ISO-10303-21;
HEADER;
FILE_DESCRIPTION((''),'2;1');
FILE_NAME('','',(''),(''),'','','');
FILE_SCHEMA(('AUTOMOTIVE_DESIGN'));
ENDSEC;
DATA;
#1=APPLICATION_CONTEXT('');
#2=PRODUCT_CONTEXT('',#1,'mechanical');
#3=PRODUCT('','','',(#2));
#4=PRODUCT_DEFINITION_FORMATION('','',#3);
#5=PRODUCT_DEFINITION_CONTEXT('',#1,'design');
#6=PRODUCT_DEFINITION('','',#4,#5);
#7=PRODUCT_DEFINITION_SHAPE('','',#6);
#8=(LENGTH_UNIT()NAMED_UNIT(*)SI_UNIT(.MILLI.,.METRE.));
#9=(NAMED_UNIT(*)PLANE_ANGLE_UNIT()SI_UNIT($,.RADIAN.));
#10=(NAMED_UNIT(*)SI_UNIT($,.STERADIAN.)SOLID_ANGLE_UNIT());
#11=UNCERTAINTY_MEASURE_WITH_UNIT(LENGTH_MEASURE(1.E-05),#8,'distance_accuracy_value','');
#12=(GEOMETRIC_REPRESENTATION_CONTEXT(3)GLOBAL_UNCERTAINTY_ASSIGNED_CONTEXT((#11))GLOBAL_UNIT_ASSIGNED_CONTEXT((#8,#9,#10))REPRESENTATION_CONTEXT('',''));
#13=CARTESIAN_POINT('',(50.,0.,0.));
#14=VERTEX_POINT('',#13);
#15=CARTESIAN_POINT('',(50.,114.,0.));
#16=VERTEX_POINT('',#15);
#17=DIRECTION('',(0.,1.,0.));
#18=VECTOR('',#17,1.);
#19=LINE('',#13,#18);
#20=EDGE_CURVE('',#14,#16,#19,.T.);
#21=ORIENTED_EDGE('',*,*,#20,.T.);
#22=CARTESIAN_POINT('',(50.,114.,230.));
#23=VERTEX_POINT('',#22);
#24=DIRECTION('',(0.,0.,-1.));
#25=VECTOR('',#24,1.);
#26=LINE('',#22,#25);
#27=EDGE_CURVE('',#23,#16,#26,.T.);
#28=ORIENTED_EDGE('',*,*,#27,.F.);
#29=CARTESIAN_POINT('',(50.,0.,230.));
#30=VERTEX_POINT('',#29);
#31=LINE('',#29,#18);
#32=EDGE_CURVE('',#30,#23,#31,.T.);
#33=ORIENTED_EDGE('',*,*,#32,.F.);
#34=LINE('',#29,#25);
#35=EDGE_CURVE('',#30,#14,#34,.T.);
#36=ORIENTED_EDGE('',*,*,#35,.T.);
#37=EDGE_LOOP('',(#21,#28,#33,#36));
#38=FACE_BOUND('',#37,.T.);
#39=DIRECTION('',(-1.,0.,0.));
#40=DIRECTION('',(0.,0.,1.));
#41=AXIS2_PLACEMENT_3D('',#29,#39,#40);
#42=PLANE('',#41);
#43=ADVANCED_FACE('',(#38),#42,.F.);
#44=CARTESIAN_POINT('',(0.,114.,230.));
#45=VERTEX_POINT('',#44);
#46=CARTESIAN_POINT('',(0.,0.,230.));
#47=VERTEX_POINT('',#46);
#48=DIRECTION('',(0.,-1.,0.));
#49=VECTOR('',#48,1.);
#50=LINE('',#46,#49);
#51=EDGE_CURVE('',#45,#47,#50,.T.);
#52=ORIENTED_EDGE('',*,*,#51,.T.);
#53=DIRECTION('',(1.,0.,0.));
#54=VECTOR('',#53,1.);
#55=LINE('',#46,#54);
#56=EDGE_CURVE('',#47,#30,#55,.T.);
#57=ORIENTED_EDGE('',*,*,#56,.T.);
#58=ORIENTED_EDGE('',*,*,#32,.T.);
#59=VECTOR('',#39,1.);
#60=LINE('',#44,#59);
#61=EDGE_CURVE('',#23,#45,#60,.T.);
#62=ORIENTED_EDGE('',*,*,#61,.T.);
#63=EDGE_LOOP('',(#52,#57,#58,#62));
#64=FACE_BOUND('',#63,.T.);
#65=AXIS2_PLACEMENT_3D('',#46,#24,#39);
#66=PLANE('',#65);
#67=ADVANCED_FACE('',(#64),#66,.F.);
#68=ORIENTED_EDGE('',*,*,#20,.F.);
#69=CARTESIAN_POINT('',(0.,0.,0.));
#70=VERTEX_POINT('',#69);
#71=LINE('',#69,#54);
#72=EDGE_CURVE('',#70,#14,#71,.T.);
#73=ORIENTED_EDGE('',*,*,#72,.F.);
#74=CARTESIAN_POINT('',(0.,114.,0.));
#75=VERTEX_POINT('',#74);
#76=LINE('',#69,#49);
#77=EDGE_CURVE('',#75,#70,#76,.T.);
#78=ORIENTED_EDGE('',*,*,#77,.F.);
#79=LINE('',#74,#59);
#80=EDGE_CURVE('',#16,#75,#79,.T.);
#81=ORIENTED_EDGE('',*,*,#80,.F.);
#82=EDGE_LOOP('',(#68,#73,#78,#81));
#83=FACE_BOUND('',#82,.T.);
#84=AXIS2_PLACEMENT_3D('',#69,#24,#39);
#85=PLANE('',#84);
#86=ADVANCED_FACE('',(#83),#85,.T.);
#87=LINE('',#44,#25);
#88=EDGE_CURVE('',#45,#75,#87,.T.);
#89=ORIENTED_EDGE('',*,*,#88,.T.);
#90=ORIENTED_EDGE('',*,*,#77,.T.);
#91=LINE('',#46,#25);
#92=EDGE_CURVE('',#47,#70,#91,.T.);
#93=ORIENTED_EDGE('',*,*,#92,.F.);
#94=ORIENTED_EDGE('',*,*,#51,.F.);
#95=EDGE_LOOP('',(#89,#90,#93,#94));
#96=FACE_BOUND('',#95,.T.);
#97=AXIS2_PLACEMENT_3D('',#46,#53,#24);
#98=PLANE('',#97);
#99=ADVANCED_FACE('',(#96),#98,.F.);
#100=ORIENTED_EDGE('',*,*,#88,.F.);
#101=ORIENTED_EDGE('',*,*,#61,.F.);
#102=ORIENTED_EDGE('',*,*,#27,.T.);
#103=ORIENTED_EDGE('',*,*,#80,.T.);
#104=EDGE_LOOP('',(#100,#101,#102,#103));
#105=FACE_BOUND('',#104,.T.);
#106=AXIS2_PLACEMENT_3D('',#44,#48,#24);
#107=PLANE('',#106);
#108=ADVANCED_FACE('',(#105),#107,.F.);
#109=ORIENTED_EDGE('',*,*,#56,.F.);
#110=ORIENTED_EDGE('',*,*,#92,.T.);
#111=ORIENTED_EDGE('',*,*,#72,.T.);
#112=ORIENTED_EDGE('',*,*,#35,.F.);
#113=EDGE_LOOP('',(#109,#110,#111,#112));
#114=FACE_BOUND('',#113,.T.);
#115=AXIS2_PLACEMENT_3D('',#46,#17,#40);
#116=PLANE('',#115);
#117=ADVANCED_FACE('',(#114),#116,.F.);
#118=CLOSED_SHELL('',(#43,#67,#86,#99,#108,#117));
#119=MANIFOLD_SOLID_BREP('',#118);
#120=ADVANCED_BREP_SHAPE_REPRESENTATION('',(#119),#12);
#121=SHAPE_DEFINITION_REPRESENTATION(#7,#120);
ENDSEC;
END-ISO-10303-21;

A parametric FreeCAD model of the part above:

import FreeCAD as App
import Part
import Sketcher

V = App.Vector
Q = App.Units.Quantity


def add_polygon(sketch, points):
    """Adds a closed chain of lines whose ends are joined by coincident constraints."""
    first, n = sketch.GeometryCount, len(points)
    for a, b in zip(points, points[1:] + points[:1]):
        sketch.addGeometry(Part.LineSegment(App.Vector(*a, 0), App.Vector(*b, 0)), False)
    for i in range(n):
        sketch.addConstraint(Sketcher.Constraint("Coincident", first + i, 2, first + (i + 1) % n, 1))

doc = App.newDocument("Part")
body = doc.addObject("PartDesign::Body", "Body")

sketch1 = doc.addObject("Sketcher::SketchObject", "Sketch")
body.addObject(sketch1)
sketch1.AttachmentSupport = (doc.XY_Plane, [""])
sketch1.MapMode = "FlatFace"
add_polygon(sketch1, [(0, 114), (0, 0), (50, 0), (50, 114)])
sketch1.addConstraint(Sketcher.Constraint("Vertical", 0))
sketch1.addConstraint(Sketcher.Constraint("Horizontal", 1))
sketch1.addConstraint(Sketcher.Constraint("Vertical", 2))
sketch1.addConstraint(Sketcher.Constraint("Horizontal", 3))
sketch1.addConstraint(Sketcher.Constraint("Coincident", 0, 2, -1, 1))
sketch1.addConstraint(Sketcher.Constraint("DistanceX", 1, 1, 1, 2, Q("50 mm")))
sketch1.addConstraint(Sketcher.Constraint("DistanceY", 0, 2, 0, 1, Q("114 mm")))
pad1 = doc.addObject("PartDesign::Pad", "Pad")
body.addObject(pad1)
pad1.Profile = sketch1
pad1.Length = 230

doc.recompute()
